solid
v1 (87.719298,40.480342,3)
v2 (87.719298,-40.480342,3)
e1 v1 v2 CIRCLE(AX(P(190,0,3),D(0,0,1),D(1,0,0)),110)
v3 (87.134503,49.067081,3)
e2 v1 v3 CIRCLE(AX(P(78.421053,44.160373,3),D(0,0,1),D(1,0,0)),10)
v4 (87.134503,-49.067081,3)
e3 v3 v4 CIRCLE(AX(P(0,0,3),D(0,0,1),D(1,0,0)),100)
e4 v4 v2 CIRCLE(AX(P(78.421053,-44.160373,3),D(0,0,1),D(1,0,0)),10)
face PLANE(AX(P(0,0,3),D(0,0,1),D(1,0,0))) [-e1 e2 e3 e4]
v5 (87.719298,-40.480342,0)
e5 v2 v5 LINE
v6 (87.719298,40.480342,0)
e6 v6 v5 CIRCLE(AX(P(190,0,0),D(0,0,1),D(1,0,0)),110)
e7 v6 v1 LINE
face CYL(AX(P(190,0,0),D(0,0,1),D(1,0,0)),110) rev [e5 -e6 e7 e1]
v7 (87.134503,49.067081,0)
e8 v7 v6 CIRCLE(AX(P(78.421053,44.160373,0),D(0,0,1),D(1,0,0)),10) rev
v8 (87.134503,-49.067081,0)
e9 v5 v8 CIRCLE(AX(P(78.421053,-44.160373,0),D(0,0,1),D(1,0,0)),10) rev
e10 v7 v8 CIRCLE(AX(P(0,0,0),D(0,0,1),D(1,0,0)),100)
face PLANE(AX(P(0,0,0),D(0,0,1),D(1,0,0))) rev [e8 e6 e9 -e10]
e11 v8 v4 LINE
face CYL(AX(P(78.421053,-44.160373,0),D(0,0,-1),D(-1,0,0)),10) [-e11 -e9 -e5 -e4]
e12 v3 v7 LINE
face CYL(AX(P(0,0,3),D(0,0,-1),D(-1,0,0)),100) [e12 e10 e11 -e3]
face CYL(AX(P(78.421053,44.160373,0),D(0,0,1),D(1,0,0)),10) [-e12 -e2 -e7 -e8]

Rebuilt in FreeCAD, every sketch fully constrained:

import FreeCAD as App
import Part
import Sketcher

V = App.Vector
Q = App.Units.Quantity


def edges_at(feature, points):
    """Names of the edges that pass closest to the given points."""
    edges = feature.Shape.Edges
    near = lambda p: min(range(len(edges)), key=lambda i: edges[i].distToShape(Part.Vertex(*p))[0])
    return sorted({f"Edge{near(p) + 1}" for p in points})

doc = App.newDocument("Part")
params = doc.addObject("Spreadsheet::Sheet", "Params")
for row, (alias, value) in enumerate([
    ("sketch1_diameter", "200 mm"),
    ("pad1_length", "3 mm"),
    ("sketch2_diameter", "220 mm"),
    ("pocket1_length", "3 mm"),
    ("fillet_radius", "10 mm"),
], start=1):
    params.set(f"A{row}", alias)
    params.set(f"B{row}", "=" + value)
    params.setAlias(f"B{row}", alias)

body = doc.addObject("PartDesign::Body", "Body")

sketch1 = body.newObject("Sketcher::SketchObject", "Sketch")
sketch1.AttachmentSupport = (doc.getObject("XY_Plane"), [""])
sketch1.MapMode = "FlatFace"
sketch1.addGeometry(Part.Circle(V(0, 0, 0), V(0, 0, 1), 100), False)
sketch1.addConstraint([
    Sketcher.Constraint("Coincident", 0, 3, -1, 1),
    Sketcher.Constraint("Diameter", 0, Q("200 mm")),
])
sketch1.setExpression("Constraints[1]", "Params.sketch1_diameter")
pad1 = body.newObject("PartDesign::Pad", "Pad")
pad1.Profile = sketch1
pad1.setExpression("Length", "Params.pad1_length")

sketch2 = body.newObject("Sketcher::SketchObject", "Sketch001")
sketch2.AttachmentSupport = (doc.getObject("XY_Plane"), [""])
sketch2.MapMode = "FlatFace"
sketch2.AttachmentOffset = App.Placement(V(0, 0, 3), App.Rotation())
sketch2.addGeometry(Part.Circle(V(190, 0, 0), V(0, 0, 1), 110), False)
sketch2.addConstraint([
    Sketcher.Constraint("PointOnObject", 0, 3, -1),
    Sketcher.Constraint("Diameter", 0, Q("220 mm")),
    Sketcher.Constraint("DistanceX", -1, 1, 0, 3, Q("190 mm")),
])
sketch2.setExpression("Constraints[1]", "Params.sketch2_diameter")
pocket1 = body.newObject("PartDesign::Pocket", "Pocket")
pocket1.Profile = sketch2
pocket1.setExpression("Length", "Params.pocket1_length")
doc.recompute()

fillet = body.newObject("PartDesign::Fillet", "Fillet")
fillet.Base = (pocket1, edges_at(pocket1, [(89.474, -44.659, 1.5), (89.474, 44.659, 1.5)]))
fillet.setExpression("Radius", "Params.fillet_radius")

doc.recompute()
